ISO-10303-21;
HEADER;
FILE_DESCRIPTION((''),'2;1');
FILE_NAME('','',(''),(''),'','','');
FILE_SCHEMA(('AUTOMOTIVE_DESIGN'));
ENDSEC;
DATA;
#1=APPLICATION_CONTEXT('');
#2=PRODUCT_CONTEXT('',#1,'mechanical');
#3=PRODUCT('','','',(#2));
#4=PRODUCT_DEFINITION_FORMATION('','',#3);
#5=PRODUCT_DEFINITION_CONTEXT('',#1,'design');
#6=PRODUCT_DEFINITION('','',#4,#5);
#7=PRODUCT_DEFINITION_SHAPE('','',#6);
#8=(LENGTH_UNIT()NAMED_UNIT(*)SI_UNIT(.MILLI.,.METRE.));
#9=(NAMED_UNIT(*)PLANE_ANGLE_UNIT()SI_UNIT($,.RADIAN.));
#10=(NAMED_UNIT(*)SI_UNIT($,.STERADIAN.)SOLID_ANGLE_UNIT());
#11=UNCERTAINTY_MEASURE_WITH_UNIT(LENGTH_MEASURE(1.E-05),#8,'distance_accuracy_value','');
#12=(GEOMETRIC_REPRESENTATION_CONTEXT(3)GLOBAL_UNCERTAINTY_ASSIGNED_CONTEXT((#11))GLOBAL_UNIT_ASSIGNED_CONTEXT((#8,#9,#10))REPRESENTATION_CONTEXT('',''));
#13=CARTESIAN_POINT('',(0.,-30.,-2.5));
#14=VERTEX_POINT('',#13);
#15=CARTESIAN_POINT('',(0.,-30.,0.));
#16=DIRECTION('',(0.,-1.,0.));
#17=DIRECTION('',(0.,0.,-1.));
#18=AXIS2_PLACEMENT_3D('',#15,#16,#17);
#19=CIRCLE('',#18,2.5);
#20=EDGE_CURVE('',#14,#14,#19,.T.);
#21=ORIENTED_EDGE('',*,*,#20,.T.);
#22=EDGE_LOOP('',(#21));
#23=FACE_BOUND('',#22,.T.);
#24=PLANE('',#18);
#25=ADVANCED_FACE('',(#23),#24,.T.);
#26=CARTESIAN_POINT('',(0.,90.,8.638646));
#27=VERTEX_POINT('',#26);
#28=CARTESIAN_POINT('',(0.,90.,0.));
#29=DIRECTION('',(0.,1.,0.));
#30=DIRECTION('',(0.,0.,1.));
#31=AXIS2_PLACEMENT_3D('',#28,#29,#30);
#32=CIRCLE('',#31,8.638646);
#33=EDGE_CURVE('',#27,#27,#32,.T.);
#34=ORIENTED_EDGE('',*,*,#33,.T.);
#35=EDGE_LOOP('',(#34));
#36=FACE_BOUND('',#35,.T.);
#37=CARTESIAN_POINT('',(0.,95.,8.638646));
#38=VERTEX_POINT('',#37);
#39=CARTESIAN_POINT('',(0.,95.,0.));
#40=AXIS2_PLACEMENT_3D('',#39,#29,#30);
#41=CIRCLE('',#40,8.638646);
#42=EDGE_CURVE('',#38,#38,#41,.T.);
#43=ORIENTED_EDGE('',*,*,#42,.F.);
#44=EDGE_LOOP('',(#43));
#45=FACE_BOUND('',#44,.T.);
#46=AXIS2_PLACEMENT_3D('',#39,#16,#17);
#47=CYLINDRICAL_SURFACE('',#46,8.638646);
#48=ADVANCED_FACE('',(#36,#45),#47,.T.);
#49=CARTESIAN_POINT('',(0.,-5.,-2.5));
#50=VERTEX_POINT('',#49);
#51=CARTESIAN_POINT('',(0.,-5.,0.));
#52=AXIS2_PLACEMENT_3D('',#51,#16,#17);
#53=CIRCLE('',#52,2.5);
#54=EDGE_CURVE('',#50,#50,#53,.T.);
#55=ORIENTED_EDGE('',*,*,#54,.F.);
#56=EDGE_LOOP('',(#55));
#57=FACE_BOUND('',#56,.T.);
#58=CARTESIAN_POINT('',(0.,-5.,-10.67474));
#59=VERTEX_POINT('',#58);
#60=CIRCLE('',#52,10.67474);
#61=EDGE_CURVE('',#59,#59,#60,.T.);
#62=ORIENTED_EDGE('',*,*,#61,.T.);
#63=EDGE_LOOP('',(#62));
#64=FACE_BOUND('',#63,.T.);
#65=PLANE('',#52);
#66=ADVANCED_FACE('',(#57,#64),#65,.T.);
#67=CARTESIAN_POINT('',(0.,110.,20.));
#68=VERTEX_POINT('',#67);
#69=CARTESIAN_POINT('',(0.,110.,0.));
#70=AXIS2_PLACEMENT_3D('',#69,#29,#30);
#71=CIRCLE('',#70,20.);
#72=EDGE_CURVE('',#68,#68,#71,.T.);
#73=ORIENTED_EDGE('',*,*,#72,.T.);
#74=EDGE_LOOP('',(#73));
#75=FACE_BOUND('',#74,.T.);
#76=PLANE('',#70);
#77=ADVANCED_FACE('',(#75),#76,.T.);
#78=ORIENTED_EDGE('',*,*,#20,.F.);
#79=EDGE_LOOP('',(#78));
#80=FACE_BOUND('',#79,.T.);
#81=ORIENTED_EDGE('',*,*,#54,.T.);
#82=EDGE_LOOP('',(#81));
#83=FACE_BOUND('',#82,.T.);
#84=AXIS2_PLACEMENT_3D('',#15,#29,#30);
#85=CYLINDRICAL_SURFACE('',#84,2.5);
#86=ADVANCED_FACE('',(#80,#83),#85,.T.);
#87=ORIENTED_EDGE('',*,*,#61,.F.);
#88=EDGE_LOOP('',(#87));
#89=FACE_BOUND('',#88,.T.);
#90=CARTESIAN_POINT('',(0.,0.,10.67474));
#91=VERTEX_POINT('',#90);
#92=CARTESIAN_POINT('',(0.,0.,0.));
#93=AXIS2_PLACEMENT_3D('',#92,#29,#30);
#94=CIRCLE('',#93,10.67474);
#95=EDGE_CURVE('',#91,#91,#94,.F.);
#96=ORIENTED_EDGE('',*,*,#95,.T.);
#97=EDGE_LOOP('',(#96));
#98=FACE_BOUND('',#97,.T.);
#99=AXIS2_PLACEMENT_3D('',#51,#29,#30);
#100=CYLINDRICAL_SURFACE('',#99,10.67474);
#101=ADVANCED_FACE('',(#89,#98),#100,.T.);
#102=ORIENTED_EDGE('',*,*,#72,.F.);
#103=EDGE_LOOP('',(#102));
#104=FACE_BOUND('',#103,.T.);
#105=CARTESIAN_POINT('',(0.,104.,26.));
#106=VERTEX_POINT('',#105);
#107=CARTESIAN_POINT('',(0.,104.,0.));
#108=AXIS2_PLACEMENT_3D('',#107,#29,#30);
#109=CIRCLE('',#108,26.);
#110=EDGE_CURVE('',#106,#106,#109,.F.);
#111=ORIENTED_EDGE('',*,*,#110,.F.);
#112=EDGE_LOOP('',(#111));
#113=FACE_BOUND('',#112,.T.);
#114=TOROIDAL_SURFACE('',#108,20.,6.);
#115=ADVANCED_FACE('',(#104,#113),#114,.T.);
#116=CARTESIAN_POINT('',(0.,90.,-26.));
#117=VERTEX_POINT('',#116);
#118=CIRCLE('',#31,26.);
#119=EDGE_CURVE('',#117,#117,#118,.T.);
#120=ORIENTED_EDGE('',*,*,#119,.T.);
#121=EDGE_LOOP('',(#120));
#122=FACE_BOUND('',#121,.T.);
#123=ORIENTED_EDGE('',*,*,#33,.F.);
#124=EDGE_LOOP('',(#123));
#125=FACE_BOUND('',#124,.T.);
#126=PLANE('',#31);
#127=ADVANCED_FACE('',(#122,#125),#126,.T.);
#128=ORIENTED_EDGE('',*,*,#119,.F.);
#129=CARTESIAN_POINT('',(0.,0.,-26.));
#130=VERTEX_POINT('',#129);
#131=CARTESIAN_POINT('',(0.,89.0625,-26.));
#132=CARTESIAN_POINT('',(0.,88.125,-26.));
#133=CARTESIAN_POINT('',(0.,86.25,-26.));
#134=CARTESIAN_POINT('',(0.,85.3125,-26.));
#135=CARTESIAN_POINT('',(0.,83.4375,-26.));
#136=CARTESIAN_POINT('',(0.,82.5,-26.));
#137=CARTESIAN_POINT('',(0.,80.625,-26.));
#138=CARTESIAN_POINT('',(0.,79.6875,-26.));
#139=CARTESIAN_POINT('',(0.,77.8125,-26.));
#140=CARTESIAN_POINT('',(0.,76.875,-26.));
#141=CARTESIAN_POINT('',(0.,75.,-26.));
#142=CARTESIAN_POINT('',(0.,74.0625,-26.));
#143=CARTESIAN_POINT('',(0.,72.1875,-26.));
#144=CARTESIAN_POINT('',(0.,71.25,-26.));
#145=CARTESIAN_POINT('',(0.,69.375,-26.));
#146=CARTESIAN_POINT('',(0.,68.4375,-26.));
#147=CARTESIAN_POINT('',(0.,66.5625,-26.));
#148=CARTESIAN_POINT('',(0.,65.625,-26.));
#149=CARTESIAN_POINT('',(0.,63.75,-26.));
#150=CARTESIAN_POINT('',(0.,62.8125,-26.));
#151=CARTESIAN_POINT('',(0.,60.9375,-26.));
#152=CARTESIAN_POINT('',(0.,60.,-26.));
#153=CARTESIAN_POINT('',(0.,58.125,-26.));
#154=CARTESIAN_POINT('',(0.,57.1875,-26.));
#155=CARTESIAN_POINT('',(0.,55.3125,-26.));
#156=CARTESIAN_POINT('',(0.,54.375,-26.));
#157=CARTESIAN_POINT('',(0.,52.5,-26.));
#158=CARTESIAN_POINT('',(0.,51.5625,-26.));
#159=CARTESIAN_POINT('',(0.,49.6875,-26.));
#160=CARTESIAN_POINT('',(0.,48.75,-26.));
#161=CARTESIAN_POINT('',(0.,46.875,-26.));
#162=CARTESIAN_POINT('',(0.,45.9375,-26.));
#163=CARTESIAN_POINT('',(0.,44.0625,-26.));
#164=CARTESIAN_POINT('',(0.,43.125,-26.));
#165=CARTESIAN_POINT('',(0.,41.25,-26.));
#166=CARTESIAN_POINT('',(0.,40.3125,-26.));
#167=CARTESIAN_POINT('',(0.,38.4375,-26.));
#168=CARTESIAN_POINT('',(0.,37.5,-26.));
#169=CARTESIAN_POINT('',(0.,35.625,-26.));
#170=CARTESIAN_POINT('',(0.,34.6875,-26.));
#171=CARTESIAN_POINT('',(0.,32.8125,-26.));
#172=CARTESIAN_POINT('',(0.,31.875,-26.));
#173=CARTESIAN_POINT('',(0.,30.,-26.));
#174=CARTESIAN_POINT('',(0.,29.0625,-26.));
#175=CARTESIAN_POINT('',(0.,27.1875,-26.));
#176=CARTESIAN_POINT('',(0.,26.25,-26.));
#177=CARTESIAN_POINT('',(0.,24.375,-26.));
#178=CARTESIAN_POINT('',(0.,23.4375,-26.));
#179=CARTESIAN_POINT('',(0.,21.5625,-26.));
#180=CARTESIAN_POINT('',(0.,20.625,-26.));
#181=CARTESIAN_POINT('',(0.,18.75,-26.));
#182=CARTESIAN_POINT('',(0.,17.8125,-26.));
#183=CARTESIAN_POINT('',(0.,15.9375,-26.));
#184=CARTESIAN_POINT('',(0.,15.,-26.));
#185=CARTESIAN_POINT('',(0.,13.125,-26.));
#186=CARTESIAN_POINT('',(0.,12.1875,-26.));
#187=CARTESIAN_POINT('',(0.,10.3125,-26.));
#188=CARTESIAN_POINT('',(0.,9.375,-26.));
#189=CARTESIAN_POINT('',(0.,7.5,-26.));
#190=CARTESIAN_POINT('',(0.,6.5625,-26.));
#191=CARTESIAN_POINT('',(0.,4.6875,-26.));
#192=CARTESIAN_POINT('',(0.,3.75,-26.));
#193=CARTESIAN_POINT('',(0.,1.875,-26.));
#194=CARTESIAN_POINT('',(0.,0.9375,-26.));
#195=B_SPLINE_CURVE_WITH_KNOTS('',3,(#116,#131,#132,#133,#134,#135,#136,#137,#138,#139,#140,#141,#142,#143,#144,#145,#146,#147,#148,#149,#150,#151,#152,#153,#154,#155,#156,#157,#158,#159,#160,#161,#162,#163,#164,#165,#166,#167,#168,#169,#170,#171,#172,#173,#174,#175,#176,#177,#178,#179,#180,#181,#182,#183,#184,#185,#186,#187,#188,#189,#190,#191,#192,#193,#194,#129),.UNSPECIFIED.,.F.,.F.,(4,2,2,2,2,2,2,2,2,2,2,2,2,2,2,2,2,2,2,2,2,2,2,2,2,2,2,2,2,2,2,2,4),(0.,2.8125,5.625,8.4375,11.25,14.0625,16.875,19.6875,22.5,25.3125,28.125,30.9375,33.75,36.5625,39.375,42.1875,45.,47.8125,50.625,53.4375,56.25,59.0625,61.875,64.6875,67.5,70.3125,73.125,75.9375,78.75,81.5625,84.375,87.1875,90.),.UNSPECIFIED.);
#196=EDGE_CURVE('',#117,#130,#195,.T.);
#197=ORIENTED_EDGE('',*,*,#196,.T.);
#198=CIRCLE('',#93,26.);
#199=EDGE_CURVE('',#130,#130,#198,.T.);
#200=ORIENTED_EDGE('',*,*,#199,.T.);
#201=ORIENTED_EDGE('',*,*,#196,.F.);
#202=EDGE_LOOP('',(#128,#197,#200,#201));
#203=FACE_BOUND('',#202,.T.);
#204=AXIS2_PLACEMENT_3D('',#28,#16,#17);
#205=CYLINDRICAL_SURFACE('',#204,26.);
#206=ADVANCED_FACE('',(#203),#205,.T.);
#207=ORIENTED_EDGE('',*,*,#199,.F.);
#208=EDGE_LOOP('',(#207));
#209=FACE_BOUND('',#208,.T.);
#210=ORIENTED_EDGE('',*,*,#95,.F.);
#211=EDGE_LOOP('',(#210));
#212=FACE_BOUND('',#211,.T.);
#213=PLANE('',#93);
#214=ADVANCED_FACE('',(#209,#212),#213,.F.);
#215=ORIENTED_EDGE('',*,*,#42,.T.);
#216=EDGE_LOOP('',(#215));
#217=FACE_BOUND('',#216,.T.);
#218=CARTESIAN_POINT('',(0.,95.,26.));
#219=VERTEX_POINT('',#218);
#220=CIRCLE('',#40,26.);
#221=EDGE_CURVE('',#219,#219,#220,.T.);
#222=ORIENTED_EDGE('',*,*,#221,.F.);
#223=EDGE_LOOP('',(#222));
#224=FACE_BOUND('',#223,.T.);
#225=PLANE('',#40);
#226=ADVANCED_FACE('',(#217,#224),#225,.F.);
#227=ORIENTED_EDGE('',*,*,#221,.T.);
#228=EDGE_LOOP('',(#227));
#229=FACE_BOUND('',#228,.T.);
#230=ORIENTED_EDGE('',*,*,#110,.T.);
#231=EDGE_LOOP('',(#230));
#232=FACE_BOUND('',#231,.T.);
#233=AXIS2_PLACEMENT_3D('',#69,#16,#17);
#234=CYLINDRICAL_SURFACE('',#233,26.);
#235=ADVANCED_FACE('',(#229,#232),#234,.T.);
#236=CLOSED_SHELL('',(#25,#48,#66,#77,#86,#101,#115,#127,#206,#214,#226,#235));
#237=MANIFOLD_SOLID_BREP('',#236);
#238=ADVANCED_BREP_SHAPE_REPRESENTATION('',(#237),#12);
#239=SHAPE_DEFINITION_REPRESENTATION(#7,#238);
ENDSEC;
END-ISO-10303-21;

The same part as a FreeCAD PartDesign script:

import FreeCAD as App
import Part
import Sketcher
from FreeCAD import Vector
Q = App.Units.Quantity


def edges_at(feature, points):
    """Names of the edges that pass closest to the given points."""
    edges = feature.Shape.Edges
    near = lambda p: min(range(len(edges)), key=lambda i: edges[i].distToShape(Part.Vertex(*p))[0])
    return sorted({f"Edge{near(p) + 1}" for p in points})

doc = App.newDocument("Part")
body = doc.addObject("PartDesign::Body", "Body")

sketch1 = body.newObject("Sketcher::SketchObject", "Sketch")
sketch1.AttachmentSupport = (doc.getObject("XZ_Plane"), [""])
sketch1.MapMode = "FlatFace"
sketch1.addGeometry(Part.Circle(Vector(0, 0, 0), Vector(0, 0, 1), 26), False)
sketch1.addConstraint([
    Sketcher.Constraint("Coincident", 0, 3, -1, 1),
    Sketcher.Constraint("Diameter", 0, Q("52 mm")),
])
pad1 = body.newObject("PartDesign::Pad", "Pad")
pad1.Profile = sketch1
pad1.Length = 90
pad1.Reversed = True

sketch2 = body.newObject("Sketcher::SketchObject", "Sketch001")
sketch2.AttachmentSupport = (doc.getObject("XZ_Plane"), [""])
sketch2.MapMode = "FlatFace"
sketch2.AttachmentOffset = App.Placement(Vector(0, 0, -90), App.Rotation())
sketch2.addGeometry(Part.Circle(Vector(0, 0, 0), Vector(0, 0, 1), 8.638646), False)
sketch2.addConstraint([
    Sketcher.Constraint("Coincident", 0, 3, -1, 1),
    Sketcher.Constraint("Diameter", 0, Q("17.277292 mm")),
])
pad2 = body.newObject("PartDesign::Pad", "Pad001")
pad2.Profile = sketch2
pad2.Length = 5
pad2.Reversed = True

sketch3 = body.newObject("Sketcher::SketchObject", "Sketch002")
sketch3.AttachmentSupport = (doc.getObject("XZ_Plane"), [""])
sketch3.MapMode = "FlatFace"
sketch3.AttachmentOffset = App.Placement(Vector(0, 0, -95), App.Rotation())
sketch3.addGeometry(Part.Circle(Vector(0, 0, 0), Vector(0, 0, 1), 26), False)
sketch3.addConstraint([
    Sketcher.Constraint("Coincident", 0, 3, -1, 1),
    Sketcher.Constraint("Diameter", 0, Q("52 mm")),
])
pad3 = body.newObject("PartDesign::Pad", "Pad002")
pad3.Profile = sketch3
pad3.Length = 15
pad3.Reversed = True

sketch4 = body.newObject("Sketcher::SketchObject", "Sketch003")
sketch4.AttachmentSupport = (doc.getObject("XZ_Plane"), [""])
sketch4.MapMode = "FlatFace"
sketch4.addGeometry(Part.Circle(Vector(0, 0, 0), Vector(0, 0, 1), 10.67474), False)
sketch4.addConstraint([
    Sketcher.Constraint("Coincident", 0, 3, -1, 1),
    Sketcher.Constraint("Diameter", 0, Q("21.34948 mm")),
])
pad4 = body.newObject("PartDesign::Pad", "Pad003")
pad4.Profile = sketch4
pad4.Length = 5

sketch5 = body.newObject("Sketcher::SketchObject", "Sketch004")
sketch5.AttachmentSupport = (doc.getObject("XZ_Plane"), [""])
sketch5.MapMode = "FlatFace"
sketch5.AttachmentOffset = App.Placement(Vector(0, 0, 5), App.Rotation())
sketch5.addGeometry(Part.Circle(Vector(0, 0, 0), Vector(0, 0, 1), 2.5), False)
sketch5.addConstraint([
    Sketcher.Constraint("Coincident", 0, 3, -1, 1),
    Sketcher.Constraint("Diameter", 0, Q("5 mm")),
])
pad5 = body.newObject("PartDesign::Pad", "Pad004")
pad5.Profile = sketch5
pad5.Length = 25
doc.recompute()

fillet = body.newObject("PartDesign::Fillet", "Fillet")
fillet.Base = (pad5, edges_at(pad5, [(0, 110, 26)]))
fillet.Radius = 6

doc.recompute()
